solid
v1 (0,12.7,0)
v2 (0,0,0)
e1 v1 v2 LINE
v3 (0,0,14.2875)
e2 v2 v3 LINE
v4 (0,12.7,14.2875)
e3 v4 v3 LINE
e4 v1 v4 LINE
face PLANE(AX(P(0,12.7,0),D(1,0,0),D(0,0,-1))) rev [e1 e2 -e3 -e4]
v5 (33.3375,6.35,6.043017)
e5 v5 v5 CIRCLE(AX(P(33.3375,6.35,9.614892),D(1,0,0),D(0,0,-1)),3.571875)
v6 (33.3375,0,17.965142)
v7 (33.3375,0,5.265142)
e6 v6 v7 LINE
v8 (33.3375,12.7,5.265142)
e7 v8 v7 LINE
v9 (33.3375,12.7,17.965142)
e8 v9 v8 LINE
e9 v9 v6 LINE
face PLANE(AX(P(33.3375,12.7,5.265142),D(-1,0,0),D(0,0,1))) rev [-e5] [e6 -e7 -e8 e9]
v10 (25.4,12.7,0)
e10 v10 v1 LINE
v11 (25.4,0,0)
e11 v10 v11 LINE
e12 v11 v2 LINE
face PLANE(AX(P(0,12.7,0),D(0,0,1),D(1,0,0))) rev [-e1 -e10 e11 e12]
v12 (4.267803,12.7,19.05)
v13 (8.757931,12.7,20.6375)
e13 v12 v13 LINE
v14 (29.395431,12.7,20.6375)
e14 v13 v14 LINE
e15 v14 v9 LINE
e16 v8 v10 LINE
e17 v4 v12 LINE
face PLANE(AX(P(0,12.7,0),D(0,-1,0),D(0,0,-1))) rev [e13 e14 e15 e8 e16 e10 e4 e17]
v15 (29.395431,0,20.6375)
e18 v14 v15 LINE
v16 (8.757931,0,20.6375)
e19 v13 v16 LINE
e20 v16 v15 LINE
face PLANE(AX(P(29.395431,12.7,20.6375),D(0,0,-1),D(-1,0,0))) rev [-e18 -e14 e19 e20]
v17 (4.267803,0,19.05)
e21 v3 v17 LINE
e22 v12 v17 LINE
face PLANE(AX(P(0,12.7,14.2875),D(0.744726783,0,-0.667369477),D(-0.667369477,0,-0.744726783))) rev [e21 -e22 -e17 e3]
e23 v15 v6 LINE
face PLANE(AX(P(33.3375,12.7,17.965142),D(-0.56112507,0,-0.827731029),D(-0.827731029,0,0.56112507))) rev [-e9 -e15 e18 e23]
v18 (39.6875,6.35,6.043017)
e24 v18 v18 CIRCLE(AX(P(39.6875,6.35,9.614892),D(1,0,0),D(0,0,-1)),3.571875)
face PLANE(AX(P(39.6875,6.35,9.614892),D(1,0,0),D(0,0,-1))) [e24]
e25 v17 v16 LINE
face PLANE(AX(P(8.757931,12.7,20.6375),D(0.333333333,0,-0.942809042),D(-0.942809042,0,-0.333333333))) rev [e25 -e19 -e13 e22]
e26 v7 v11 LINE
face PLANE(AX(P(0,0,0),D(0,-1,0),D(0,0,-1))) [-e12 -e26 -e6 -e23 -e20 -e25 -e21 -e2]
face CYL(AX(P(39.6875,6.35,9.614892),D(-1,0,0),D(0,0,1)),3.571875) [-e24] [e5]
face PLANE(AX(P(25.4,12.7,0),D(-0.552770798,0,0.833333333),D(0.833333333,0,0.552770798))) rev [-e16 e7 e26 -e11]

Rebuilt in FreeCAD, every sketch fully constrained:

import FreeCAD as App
import Part
import Sketcher

V = App.Vector
Q = App.Units.Quantity


def add_polygon(sketch, points):
    """Adds a closed chain of lines whose ends are joined by coincident constraints."""
    first, n = sketch.GeometryCount, len(points)
    for a, b in zip(points, points[1:] + points[:1]):
        sketch.addGeometry(Part.LineSegment(App.Vector(*a, 0), App.Vector(*b, 0)), False)
    for i in range(n):
        sketch.addConstraint(Sketcher.Constraint("Coincident", first + i, 2, first + (i + 1) % n, 1))

doc = App.newDocument("Part")
body = doc.addObject("PartDesign::Body", "Body")

# Sketch on XZ plane
sketch1 = doc.addObject("Sketcher::SketchObject", "Sketch")
body.addObject(sketch1)
sketch1.AttachmentSupport = (doc.XZ_Plane, [""])
sketch1.MapMode = "FlatFace"
add_polygon(sketch1, [(25.4, 0), (0, 0), (0, 14.3), (4.3, 19.1), (8.8, 20.6), (29.4, 20.6), (33.3, 18), (33.3, 5.3)])  # lines 0-7
sketch1.addConstraint(Sketcher.Constraint("Horizontal", 0))
sketch1.addConstraint(Sketcher.Constraint("Vertical", 1))
sketch1.addConstraint(Sketcher.Constraint("Horizontal", 4))
sketch1.addConstraint(Sketcher.Constraint("Vertical", 6))
sketch1.addConstraint(Sketcher.Constraint("Coincident", 0, 2, -1, 1))
sketch1.addConstraint(Sketcher.Constraint("Equal", 3, 5))
sketch1.addConstraint(Sketcher.Constraint("DistanceX", 0, 2, 0, 1, Q("1 in")))
sketch1.addConstraint(Sketcher.Constraint("DistanceY", 6, 2, 6, 1, Q("0.5 in")))
sketch1.addConstraint(Sketcher.Constraint("DistanceX", 4, 1, 4, 2, Q("0.8125 in")))
sketch1.addConstraint(Sketcher.Constraint("DistanceY", 1, 1, 1, 2, Q("0.5625 in")))
sketch1.addConstraint(Sketcher.Constraint("DistanceY", -1, 1, 2, 2, Q("0.75 in")))
sketch1.addConstraint(Sketcher.Constraint("DistanceY", 1, 2, 3, 2, Q("0.25 in")))
sketch1.addConstraint(Sketcher.Constraint("Distance", 3, Q("0.1875 in")))
sketch1.addConstraint(Sketcher.Constraint("Distance", 7, Q("0.375 in")))
sketch1.addConstraint(Sketcher.Constraint("DistanceX", -1, 1, 5, 2, Q("1.3125 in")))
pad1 = doc.addObject("PartDesign::Pad", "Pad")
body.addObject(pad1)
pad1.Profile = sketch1
pad1.Length = Q("0.5 in")
pad1.Reversed = True

# Sketch on YZ plane
sketch2 = doc.addObject("Sketcher::SketchObject", "Sketch001")
body.addObject(sketch2)
sketch2.AttachmentSupport = (doc.YZ_Plane, [""])
sketch2.MapMode = "FlatFace"
sketch2.AttachmentOffset = App.Placement(V(0, 0, 1.3125 * 25.4), App.Rotation())
sketch2.addGeometry(Part.Circle(V(6.3, 9.6, 0), V(0, 0, 1), 3.6), False)
sketch2.addConstraint(Sketcher.Constraint("Diameter", 0, Q("0.28125 in")))
sketch2.addConstraint(Sketcher.Constraint("DistanceX", -1, 1, 0, 3, Q("0.25 in")))
sketch2.addConstraint(Sketcher.Constraint("DistanceY", -1, 1, 0, 3, Q("9.614892 mm")))
pad2 = doc.addObject("PartDesign::Pad", "Pad001")
body.addObject(pad2)
pad2.Profile = sketch2
pad2.Length = Q("0.25 in")

doc.recompute()
